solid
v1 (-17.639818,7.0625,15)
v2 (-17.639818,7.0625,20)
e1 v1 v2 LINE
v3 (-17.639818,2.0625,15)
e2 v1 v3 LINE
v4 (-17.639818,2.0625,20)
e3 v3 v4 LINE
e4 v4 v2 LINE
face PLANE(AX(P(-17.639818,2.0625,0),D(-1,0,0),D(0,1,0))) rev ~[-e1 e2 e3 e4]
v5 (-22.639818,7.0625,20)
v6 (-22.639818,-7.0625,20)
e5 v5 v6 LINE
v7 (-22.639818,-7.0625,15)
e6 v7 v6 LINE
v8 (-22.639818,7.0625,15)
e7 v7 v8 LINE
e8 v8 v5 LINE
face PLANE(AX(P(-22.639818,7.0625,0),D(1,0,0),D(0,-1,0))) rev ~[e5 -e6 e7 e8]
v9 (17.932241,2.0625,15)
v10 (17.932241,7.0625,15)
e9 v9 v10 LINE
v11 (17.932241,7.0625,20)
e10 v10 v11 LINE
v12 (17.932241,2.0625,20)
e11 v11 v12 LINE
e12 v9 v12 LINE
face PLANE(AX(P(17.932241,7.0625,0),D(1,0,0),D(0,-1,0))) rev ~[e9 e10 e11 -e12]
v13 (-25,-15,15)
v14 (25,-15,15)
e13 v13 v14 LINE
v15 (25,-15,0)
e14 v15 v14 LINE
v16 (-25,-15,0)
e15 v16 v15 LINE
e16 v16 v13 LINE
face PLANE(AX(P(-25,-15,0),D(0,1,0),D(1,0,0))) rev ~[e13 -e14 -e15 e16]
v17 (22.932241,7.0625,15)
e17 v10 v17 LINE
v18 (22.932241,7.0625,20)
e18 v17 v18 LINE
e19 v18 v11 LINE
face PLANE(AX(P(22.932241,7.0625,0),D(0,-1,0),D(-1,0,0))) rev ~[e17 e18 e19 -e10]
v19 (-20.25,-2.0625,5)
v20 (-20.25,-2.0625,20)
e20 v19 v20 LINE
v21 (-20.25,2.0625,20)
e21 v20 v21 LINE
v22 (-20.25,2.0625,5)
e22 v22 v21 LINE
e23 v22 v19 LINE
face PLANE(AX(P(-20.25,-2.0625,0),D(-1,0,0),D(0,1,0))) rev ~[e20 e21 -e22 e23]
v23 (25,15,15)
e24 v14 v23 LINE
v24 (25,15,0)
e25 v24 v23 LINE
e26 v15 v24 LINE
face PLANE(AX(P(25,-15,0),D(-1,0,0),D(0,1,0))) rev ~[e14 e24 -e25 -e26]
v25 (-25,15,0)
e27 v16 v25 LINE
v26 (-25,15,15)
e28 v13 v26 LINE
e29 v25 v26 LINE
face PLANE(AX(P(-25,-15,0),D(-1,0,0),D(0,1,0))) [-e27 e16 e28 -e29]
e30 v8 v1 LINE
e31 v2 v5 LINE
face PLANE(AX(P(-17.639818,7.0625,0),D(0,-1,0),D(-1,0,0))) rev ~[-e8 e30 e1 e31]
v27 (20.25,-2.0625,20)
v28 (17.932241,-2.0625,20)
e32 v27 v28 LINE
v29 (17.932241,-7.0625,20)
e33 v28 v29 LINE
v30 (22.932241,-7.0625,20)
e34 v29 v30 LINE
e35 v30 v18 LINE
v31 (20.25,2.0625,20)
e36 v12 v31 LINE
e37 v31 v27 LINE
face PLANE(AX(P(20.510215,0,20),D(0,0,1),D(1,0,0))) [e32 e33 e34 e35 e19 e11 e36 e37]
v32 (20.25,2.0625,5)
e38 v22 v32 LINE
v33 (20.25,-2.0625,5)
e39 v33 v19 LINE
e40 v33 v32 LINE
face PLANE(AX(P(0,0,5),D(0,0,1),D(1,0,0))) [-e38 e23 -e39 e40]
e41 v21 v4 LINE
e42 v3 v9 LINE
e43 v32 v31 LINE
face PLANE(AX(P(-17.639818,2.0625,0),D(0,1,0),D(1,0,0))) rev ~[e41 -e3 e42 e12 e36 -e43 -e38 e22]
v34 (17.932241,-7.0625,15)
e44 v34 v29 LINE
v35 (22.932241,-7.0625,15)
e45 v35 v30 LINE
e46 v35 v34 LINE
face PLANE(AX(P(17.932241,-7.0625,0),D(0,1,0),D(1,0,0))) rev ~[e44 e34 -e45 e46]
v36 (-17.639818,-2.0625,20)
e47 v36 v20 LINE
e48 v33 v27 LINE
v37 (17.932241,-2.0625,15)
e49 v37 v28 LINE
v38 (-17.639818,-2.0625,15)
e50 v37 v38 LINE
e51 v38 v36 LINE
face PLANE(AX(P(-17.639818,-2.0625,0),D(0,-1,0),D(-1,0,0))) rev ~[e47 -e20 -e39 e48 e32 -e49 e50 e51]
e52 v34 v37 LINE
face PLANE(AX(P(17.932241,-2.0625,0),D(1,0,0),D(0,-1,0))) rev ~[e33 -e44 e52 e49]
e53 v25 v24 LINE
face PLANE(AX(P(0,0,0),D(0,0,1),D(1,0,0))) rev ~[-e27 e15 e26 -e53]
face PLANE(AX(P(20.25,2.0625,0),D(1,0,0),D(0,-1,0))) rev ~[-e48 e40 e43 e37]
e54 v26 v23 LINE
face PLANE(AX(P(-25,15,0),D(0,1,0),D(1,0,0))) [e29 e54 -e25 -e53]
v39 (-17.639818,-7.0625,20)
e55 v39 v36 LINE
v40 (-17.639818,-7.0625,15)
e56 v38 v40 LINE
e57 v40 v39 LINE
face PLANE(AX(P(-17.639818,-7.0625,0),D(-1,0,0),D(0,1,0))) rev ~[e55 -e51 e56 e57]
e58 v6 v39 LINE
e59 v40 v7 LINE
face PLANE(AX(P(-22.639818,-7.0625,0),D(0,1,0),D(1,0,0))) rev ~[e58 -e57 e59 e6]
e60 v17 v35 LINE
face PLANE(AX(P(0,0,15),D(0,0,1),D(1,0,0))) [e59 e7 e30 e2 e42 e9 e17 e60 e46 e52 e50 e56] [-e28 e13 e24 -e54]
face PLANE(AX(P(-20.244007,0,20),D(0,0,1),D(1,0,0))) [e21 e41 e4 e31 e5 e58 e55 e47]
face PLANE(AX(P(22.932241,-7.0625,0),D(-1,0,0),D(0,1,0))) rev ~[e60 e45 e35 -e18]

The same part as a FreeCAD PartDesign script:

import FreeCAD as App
import Part
import Sketcher
Q = App.Units.Quantity


def add_polygon(sketch, points):
    """Adds a closed chain of lines whose ends are joined by coincident constraints."""
    first, n = sketch.GeometryCount, len(points)
    for a, b in zip(points, points[1:] + points[:1]):
        sketch.addGeometry(Part.LineSegment(App.Vector(*a, 0), App.Vector(*b, 0)), False)
    for i in range(n):
        sketch.addConstraint(Sketcher.Constraint("Coincident", first + i, 2, first + (i + 1) % n, 1))

doc = App.newDocument("Part")
body = doc.addObject("PartDesign::Body", "Body")

# Sketch on XY plane
sketch1 = body.newObject("Sketcher::SketchObject", "Sketch")
sketch1.AttachmentSupport = (doc.getObject("XY_Plane"), [""])
sketch1.MapMode = "FlatFace"
add_polygon(sketch1, [(20.25, -2.0625), (20.25, 2.0625), (-20.25, 2.0625), (-20.25, -2.0625)])  # lines 0-3
sketch1.addConstraint([
    Sketcher.Constraint("Vertical", 0),
    Sketcher.Constraint("Horizontal", 1),
    Sketcher.Constraint("Vertical", 2),
    Sketcher.Constraint("Horizontal", 3),
    Sketcher.Constraint("Symmetric", 0, 2, 2, 2, -1, 1),
    Sketcher.Constraint("DistanceX", 1, 2, 1, 1, Q("40.5 mm")),
    Sketcher.Constraint("DistanceY", 0, 1, 0, 2, Q("4.125 mm")),
])
pad1 = body.newObject("PartDesign::Pad", "Pad")
pad1.Profile = sketch1
pad1.Length = 5

# Sketch on XY plane
sketch2 = body.newObject("Sketcher::SketchObject", "Sketch001")
sketch2.AttachmentSupport = (doc.getObject("XY_Plane"), [""])
sketch2.MapMode = "FlatFace"
add_polygon(sketch2, [(-25, 15), (-25, -15), (25, -15), (25, 15)])  # lines 0-3
add_polygon(sketch2, [(22.932241, -7.0625), (17.932241, -7.0625), (17.932241, -2.0625), (-17.639818, -2.0625), (-17.639818, -7.0625), (-22.639818, -7.0625), (-22.639818, 7.0625), (-17.639818, 7.0625), (-17.639818, 2.0625), (17.932241, 2.0625), (17.932241, 7.0625), (22.932241, 7.0625)])  # lines 4-15
sketch2.addConstraint([
    Sketcher.Constraint("Vertical", 0),
    Sketcher.Constraint("Horizontal", 1),
    Sketcher.Constraint("Vertical", 2),
    Sketcher.Constraint("Horizontal", 3),
    Sketcher.Constraint("Horizontal", 4),
    Sketcher.Constraint("Vertical", 5),
    Sketcher.Constraint("Horizontal", 6),
    Sketcher.Constraint("Vertical", 7),
    Sketcher.Constraint("Horizontal", 8),
    Sketcher.Constraint("Vertical", 9),
    Sketcher.Constraint("Horizontal", 10),
    Sketcher.Constraint("Vertical", 11),
    Sketcher.Constraint("Horizontal", 12),
    Sketcher.Constraint("Vertical", 13),
    Sketcher.Constraint("Horizontal", 14),
    Sketcher.Constraint("Vertical", 15),
    Sketcher.Constraint("Symmetric", 0, 2, 2, 2, -1, 1),
    Sketcher.Constraint("Symmetric", 7, 2, 10, 2, -1),
    Sketcher.Constraint("Symmetric", 5, 2, 12, 2, -1),
    Sketcher.Constraint("Horizontal", 4, 2, 7, 2),
    Sketcher.Constraint("Horizontal", 10, 2, 13, 2),
    Sketcher.Constraint("Equal", 4, 8),
    Sketcher.Constraint("Equal", 14, 5),
    Sketcher.Constraint("DistanceX", 1, 1, 1, 2, Q("50 mm")),
    Sketcher.Constraint("DistanceX", 4, 2, 4, 1, Q("5 mm")),
    Sketcher.Constraint("DistanceY", 0, 2, 0, 1, Q("30 mm")),
    Sketcher.Constraint("DistanceY", 9, 1, 9, 2, Q("14.125 mm")),
    Sketcher.Constraint("DistanceX", 6, 2, 6, 1, Q("35.572059 mm")),
    Sketcher.Constraint("DistanceX", -1, 1, 4, 2, Q("17.932241 mm")),
])
pad2 = body.newObject("PartDesign::Pad", "Pad001")
pad2.Profile = sketch2
pad2.Length = 15

# Sketch on XY plane
sketch3 = body.newObject("Sketcher::SketchObject", "Sketch002")
sketch3.AttachmentSupport = (doc.getObject("XY_Plane"), [""])
sketch3.MapMode = "FlatFace"
add_polygon(sketch3, [(-17.639818, -7.0625), (-17.639818, -2.0625), (-20.25, -2.0625), (-20.25, 2.0625), (-17.639818, 2.0625), (-17.639818, 7.0625), (-22.639818, 7.0625), (-22.639818, -7.0625)])  # lines 0-7
add_polygon(sketch3, [(20.25, 2.0625), (20.25, -2.0625), (17.932241, -2.0625), (17.932241, -7.0625), (22.932241, -7.0625), (22.932241, 7.0625), (17.932241, 7.0625), (17.932241, 2.0625)])  # lines 8-15
sketch3.addConstraint([
    Sketcher.Constraint("Vertical", 0),
    Sketcher.Constraint("Horizontal", 1),
    Sketcher.Constraint("Vertical", 2),
    Sketcher.Constraint("Horizontal", 3),
    Sketcher.Constraint("Vertical", 4),
    Sketcher.Constraint("Horizontal", 5),
    Sketcher.Constraint("Vertical", 6),
    Sketcher.Constraint("Horizontal", 7),
    Sketcher.Constraint("Vertical", 8),
    Sketcher.Constraint("Horizontal", 9),
    Sketcher.Constraint("Vertical", 10),
    Sketcher.Constraint("Horizontal", 11),
    Sketcher.Constraint("Vertical", 12),
    Sketcher.Constraint("Horizontal", 13),
    Sketcher.Constraint("Vertical", 14),
    Sketcher.Constraint("Horizontal", 15),
    Sketcher.Constraint("Symmetric", 2, 2, 8, 2, -1, 1),
    Sketcher.Constraint("Symmetric", 0, 2, 3, 2, -1),
    Sketcher.Constraint("Symmetric", 10, 2, 13, 2, -1),
    Sketcher.Constraint("Horizontal", 7, 2, 10, 2),
    Sketcher.Constraint("Horizontal", 5, 2, 12, 2),
    Sketcher.Constraint("Horizontal", 3, 2, 14, 2),
    Sketcher.Constraint("Equal", 7, 11),
    Sketcher.Constraint("Equal", 13, 0),
    Sketcher.Constraint("DistanceX", 5, 2, 5, 1, Q("5 mm")),
    Sketcher.Constraint("DistanceX", 1, 2, 8, 2, Q("40.5 mm")),
    Sketcher.Constraint("DistanceY", 2, 1, 2, 2, Q("4.125 mm")),
    Sketcher.Constraint("DistanceX", 1, 2, 1, 1, Q("2.610182 mm")),
    Sketcher.Constraint("DistanceX", 9, 2, 9, 1, Q("2.317759 mm")),
])
pad3 = body.newObject("PartDesign::Pad", "Pad002")
pad3.Profile = sketch3
pad3.Length = 20

doc.recompute()
